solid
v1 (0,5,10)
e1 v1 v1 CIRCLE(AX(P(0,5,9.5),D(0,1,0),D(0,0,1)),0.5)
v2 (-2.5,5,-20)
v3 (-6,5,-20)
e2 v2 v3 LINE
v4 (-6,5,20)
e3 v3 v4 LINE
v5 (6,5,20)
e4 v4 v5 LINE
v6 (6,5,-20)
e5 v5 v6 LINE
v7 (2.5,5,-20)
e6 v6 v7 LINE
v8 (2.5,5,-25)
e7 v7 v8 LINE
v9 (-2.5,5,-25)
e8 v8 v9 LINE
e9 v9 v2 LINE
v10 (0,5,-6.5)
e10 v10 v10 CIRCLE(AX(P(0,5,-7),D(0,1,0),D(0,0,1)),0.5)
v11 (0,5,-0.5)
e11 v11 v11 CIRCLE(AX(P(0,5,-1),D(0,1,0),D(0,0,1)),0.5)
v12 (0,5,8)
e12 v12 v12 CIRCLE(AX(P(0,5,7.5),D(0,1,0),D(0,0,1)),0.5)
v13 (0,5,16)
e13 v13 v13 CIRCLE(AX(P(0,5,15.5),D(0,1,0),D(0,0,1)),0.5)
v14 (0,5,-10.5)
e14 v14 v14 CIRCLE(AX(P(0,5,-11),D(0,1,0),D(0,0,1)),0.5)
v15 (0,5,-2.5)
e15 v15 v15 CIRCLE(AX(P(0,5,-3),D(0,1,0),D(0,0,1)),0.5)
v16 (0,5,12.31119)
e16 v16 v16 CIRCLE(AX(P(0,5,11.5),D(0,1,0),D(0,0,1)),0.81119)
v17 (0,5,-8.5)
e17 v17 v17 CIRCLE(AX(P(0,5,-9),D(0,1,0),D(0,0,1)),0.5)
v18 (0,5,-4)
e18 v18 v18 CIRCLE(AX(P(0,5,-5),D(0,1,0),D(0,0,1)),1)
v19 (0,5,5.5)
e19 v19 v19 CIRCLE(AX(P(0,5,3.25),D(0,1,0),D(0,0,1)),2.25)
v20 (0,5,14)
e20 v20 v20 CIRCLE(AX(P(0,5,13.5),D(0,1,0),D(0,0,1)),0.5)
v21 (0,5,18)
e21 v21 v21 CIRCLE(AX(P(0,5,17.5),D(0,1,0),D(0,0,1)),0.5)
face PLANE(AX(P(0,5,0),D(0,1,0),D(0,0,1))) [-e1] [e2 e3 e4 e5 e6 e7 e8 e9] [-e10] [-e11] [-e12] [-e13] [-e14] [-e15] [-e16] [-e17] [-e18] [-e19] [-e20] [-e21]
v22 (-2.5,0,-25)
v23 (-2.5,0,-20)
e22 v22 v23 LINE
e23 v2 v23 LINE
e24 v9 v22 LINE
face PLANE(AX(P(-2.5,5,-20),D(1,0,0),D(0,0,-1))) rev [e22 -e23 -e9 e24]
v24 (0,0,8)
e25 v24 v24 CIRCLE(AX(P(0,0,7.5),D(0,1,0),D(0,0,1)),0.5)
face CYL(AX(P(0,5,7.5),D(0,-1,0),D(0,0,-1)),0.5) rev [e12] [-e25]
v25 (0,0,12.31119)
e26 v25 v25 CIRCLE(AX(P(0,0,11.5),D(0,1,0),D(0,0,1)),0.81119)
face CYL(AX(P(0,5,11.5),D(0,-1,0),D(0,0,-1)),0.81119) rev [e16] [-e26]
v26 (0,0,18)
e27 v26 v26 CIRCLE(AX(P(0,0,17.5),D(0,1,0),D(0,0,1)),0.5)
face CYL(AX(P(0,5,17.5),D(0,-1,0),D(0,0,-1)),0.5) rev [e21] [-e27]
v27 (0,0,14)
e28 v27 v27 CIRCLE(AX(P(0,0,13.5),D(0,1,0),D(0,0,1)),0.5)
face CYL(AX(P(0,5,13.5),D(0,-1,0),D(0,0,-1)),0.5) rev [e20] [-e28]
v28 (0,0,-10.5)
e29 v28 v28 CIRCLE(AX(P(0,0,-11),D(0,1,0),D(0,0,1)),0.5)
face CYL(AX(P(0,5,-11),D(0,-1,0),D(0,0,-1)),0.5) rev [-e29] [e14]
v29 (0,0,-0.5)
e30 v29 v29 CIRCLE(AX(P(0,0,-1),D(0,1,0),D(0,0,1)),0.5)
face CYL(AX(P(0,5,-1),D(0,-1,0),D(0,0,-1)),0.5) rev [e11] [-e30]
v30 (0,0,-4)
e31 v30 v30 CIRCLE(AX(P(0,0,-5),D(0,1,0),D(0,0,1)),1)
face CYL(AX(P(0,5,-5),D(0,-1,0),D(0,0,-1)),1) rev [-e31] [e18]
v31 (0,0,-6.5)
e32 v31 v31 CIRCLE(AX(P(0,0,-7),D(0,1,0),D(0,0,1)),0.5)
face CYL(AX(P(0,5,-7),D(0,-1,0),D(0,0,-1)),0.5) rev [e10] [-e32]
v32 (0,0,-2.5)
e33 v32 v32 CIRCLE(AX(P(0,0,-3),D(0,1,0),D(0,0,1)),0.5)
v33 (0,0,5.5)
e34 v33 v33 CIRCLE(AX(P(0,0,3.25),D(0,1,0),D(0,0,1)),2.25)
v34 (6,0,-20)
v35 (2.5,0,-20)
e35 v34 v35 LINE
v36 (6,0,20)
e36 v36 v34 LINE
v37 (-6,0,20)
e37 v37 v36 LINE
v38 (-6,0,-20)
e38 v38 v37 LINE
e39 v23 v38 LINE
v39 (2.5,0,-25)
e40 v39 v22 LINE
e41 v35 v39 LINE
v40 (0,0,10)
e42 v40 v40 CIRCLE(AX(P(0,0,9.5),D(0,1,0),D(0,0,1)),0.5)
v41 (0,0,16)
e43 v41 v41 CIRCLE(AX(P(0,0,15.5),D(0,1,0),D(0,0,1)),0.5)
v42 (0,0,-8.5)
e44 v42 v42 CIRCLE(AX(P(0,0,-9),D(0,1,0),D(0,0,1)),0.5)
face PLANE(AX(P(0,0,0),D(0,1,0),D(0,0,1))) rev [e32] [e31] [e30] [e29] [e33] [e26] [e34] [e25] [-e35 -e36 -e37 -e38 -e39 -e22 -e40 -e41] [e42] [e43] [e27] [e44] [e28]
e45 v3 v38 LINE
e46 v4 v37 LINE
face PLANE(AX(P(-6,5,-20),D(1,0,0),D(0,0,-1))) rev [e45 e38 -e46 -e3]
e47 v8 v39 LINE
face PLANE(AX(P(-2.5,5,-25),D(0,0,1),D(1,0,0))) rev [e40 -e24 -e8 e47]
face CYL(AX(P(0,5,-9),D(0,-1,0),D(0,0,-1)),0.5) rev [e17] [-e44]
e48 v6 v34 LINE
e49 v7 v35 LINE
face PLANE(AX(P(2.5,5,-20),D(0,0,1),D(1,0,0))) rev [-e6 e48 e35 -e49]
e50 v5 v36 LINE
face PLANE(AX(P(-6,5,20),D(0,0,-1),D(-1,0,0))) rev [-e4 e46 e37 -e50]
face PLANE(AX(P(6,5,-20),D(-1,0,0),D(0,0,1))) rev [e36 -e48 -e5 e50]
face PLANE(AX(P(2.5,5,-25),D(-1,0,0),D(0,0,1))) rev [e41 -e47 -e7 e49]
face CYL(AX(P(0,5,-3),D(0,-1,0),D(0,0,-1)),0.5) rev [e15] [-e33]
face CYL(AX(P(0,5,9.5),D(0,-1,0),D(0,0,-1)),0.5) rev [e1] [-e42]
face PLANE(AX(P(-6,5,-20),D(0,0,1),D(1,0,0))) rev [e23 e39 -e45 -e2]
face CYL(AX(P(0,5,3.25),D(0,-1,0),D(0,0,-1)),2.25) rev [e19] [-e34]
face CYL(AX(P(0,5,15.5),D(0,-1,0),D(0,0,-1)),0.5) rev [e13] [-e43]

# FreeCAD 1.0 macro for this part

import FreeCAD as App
import Part
import Sketcher

V = App.Vector

doc = App.newDocument("Part")
body = doc.addObject("PartDesign::Body", "Body")

# Sketch on XZ plane
sketch1 = doc.addObject("Sketcher::SketchObject", "Sketch")
body.addObject(sketch1)
sketch1.AttachmentSupport = (doc.XZ_Plane, [""])
sketch1.MapMode = "FlatFace"
sketch1.addGeometry(Part.LineSegment(V(-2.5, -25, 0), V(-2.5, -20, 0)), False)
sketch1.addGeometry(Part.LineSegment(V(-2.5, -20, 0), V(-6, -20, 0)), False)
sketch1.addGeometry(Part.LineSegment(V(-6, -20, 0), V(-6, 20, 0)), False)
sketch1.addGeometry(Part.LineSegment(V(-6, 20, 0), V(6, 20, 0)), False)
sketch1.addGeometry(Part.LineSegment(V(6, 20, 0), V(6, -20, 0)), False)
sketch1.addGeometry(Part.LineSegment(V(6, -20, 0), V(2.5, -20, 0)), False)
sketch1.addGeometry(Part.LineSegment(V(2.5, -20, 0), V(2.5, -25, 0)), False)
sketch1.addGeometry(Part.LineSegment(V(2.5, -25, 0), V(-2.5, -25, 0)), False)
sketch1.addGeometry(Part.Circle(V(0, 17.5, 0), V(0, 0, 1), 0.5), False)
sketch1.addGeometry(Part.Circle(V(0, 15.5, 0), V(0, 0, 1), 0.5), False)
sketch1.addGeometry(Part.Circle(V(0, 13.5, 0), V(0, 0, 1), 0.5), False)
sketch1.addGeometry(Part.Circle(V(0, 11.5, 0), V(0, 0, 1), 0.8), False)
sketch1.addGeometry(Part.Circle(V(0, 9.5, 0), V(0, 0, 1), 0.5), False)
sketch1.addGeometry(Part.Circle(V(0, 7.5, 0), V(0, 0, 1), 0.5), False)
sketch1.addGeometry(Part.Circle(V(0, 3.2, 0), V(0, 0, 1), 2.2), False)
sketch1.addGeometry(Part.Circle(V(0, -1, 0), V(0, 0, 1), 0.5), False)
sketch1.addGeometry(Part.Circle(V(0, -3, 0), V(0, 0, 1), 0.5), False)
sketch1.addGeometry(Part.Circle(V(0, -5, 0), V(0, 0, 1), 1), False)
sketch1.addGeometry(Part.Circle(V(0, -7, 0), V(0, 0, 1), 0.5), False)
sketch1.addGeometry(Part.Circle(V(0, -9, 0), V(0, 0, 1), 0.5), False)
sketch1.addGeometry(Part.Circle(V(0, -11, 0), V(0, 0, 1), 0.5), False)
sketch1.addConstraint(Sketcher.Constraint("Coincident", 0, 2, 1, 1))
sketch1.addConstraint(Sketcher.Constraint("Coincident", 1, 2, 2, 1))
sketch1.addConstraint(Sketcher.Constraint("Coincident", 2, 2, 3, 1))
sketch1.addConstraint(Sketcher.Constraint("Coincident", 3, 2, 4, 1))
sketch1.addConstraint(Sketcher.Constraint("Coincident", 4, 2, 5, 1))
sketch1.addConstraint(Sketcher.Constraint("Coincident", 5, 2, 6, 1))
sketch1.addConstraint(Sketcher.Constraint("Coincident", 6, 2, 7, 1))
sketch1.addConstraint(Sketcher.Constraint("Coincident", 7, 2, 0, 1))
sketch1.addConstraint(Sketcher.Constraint("Vertical", 0))
sketch1.addConstraint(Sketcher.Constraint("Horizontal", 1))
sketch1.addConstraint(Sketcher.Constraint("Vertical", 2))
sketch1.addConstraint(Sketcher.Constraint("Horizontal", 3))
sketch1.addConstraint(Sketcher.Constraint("Vertical", 4))
sketch1.addConstraint(Sketcher.Constraint("Horizontal", 5))
sketch1.addConstraint(Sketcher.Constraint("Vertical", 6))
sketch1.addConstraint(Sketcher.Constraint("Horizontal", 7))
sketch1.addConstraint(Sketcher.Constraint("Equal", 8, 9))
sketch1.addConstraint(Sketcher.Constraint("Equal", 9, 10))
sketch1.addConstraint(Sketcher.Constraint("Equal", 10, 12))
sketch1.addConstraint(Sketcher.Constraint("Equal", 12, 13))
sketch1.addConstraint(Sketcher.Constraint("Equal", 13, 15))
sketch1.addConstraint(Sketcher.Constraint("Equal", 15, 16))
sketch1.addConstraint(Sketcher.Constraint("Equal", 16, 18))
sketch1.addConstraint(Sketcher.Constraint("Equal", 18, 19))
sketch1.addConstraint(Sketcher.Constraint("Equal", 19, 20))
sketch1.addConstraint(Sketcher.Constraint("Symmetric", 1, 2, 3, 2, -1, 1))
sketch1.addConstraint(Sketcher.Constraint("Symmetric", 0, 2, 5, 2, -2))
sketch1.addConstraint(Sketcher.Constraint("PointOnObject", 8, 3, -2))
sketch1.addConstraint(Sketcher.Constraint("PointOnObject", 9, 3, -2))
sketch1.addConstraint(Sketcher.Constraint("PointOnObject", 10, 3, -2))
sketch1.addConstraint(Sketcher.Constraint("PointOnObject", 11, 3, -2))
sketch1.addConstraint(Sketcher.Constraint("PointOnObject", 12, 3, -2))
sketch1.addConstraint(Sketcher.Constraint("PointOnObject", 13, 3, -2))
sketch1.addConstraint(Sketcher.Constraint("PointOnObject", 14, 3, -2))
sketch1.addConstraint(Sketcher.Constraint("PointOnObject", 15, 3, -2))
sketch1.addConstraint(Sketcher.Constraint("PointOnObject", 16, 3, -2))
sketch1.addConstraint(Sketcher.Constraint("PointOnObject", 17, 3, -2))
sketch1.addConstraint(Sketcher.Constraint("PointOnObject", 18, 3, -2))
sketch1.addConstraint(Sketcher.Constraint("PointOnObject", 19, 3, -2))
sketch1.addConstraint(Sketcher.Constraint("PointOnObject", 20, 3, -2))
sketch1.addConstraint(Sketcher.Constraint("Equal", 7, 0))
sketch1.addConstraint(Sketcher.Constraint("Diameter", 8, 1.0))
sketch1.addConstraint(Sketcher.Constraint("Diameter", 17, 2.0))
sketch1.addConstraint(Sketcher.Constraint("Diameter", 14, 4.5))
sketch1.addConstraint(Sketcher.Constraint("DistanceX", 3, 1, 3, 2, 12.0))
sketch1.addConstraint(Sketcher.Constraint("DistanceX", 7, 2, 7, 1, 5.0))
sketch1.addConstraint(Sketcher.Constraint("DistanceY", 2, 1, 2, 2, 40.0))
sketch1.addConstraint(Sketcher.Constraint("DistanceY", 15, 3, -1, 1, 1.0))
sketch1.addConstraint(Sketcher.Constraint("DistanceY", 16, 3, -1, 1, 3.0))
sketch1.addConstraint(Sketcher.Constraint("DistanceY", 17, 3, -1, 1, 5.0))
sketch1.addConstraint(Sketcher.Constraint("DistanceY", 18, 3, -1, 1, 7.0))
sketch1.addConstraint(Sketcher.Constraint("DistanceY", 19, 3, -1, 1, 9.0))
sketch1.addConstraint(Sketcher.Constraint("DistanceY", 20, 3, -1, 1, 11.0))
sketch1.addConstraint(Sketcher.Constraint("DistanceY", 9, 3, 8, 3, 2.0))
sketch1.addConstraint(Sketcher.Constraint("DistanceY", 10, 3, 9, 3, 2.0))
sketch1.addConstraint(Sketcher.Constraint("DistanceY", 11, 3, 10, 3, 2.0))
sketch1.addConstraint(Sketcher.Constraint("DistanceY", 12, 3, 11, 3, 2.0))
sketch1.addConstraint(Sketcher.Constraint("DistanceY", 13, 3, 12, 3, 2.0))
sketch1.addConstraint(Sketcher.Constraint("DistanceY", -1, 1, 8, 3, 17.5))
sketch1.addConstraint(Sketcher.Constraint("Diameter", 11, 1.622381))
sketch1.addConstraint(Sketcher.Constraint("DistanceY", -1, 1, 14, 3, 3.25))
pad1 = doc.addObject("PartDesign::Pad", "Pad")
body.addObject(pad1)
pad1.Profile = sketch1
pad1.Length = 5
pad1.Reversed = True

doc.recompute()
